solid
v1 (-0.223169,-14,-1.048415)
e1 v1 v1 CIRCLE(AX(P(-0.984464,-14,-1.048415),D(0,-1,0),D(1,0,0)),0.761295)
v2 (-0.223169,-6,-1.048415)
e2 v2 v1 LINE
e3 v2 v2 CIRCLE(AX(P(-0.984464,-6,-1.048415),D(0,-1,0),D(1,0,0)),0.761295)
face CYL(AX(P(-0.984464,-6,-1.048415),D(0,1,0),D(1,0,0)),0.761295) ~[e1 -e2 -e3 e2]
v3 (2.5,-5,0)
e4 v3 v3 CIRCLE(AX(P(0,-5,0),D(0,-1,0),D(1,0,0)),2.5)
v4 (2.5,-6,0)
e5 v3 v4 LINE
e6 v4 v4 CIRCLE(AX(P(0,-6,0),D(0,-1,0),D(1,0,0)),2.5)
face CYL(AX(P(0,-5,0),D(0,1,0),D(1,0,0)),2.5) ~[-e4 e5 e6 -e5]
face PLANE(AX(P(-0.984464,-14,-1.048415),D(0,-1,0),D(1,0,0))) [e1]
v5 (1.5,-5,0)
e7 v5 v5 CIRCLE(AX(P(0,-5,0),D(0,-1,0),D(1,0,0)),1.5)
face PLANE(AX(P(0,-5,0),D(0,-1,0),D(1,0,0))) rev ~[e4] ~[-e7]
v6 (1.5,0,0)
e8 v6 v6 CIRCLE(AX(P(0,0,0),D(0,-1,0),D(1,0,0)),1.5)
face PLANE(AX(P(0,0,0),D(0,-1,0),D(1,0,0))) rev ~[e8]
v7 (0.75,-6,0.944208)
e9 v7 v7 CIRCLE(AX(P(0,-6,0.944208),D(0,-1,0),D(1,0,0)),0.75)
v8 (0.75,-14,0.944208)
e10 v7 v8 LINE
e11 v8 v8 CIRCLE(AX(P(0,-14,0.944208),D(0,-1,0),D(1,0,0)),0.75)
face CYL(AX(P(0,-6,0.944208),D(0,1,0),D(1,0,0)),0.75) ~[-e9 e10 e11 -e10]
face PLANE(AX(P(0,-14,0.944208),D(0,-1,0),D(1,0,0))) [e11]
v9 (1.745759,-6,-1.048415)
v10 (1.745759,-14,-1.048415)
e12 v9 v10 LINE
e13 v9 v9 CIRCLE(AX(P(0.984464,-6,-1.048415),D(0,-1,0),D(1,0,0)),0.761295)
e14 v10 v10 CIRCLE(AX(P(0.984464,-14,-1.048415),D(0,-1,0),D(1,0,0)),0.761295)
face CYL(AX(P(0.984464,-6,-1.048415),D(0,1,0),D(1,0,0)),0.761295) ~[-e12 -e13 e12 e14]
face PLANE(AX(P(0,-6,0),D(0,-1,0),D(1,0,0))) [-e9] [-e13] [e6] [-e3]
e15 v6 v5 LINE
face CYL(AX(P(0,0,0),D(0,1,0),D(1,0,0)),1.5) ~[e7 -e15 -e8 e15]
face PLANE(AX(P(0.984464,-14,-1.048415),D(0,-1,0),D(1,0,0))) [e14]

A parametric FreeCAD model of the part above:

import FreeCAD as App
import Part
import Sketcher
from FreeCAD import Vector

doc = App.newDocument("Part")
params = doc.addObject("Spreadsheet::Sheet", "Params")
for row, (alias, value) in enumerate([
    ("sketch1_diameter", "3 mm"),
    ("pad1_length", "5 mm"),
    ("sketch2_diameter", "5 mm"),
    ("pad2_length", "1 mm"),
    ("sketch3_diameter", "1.5 mm"),
    ("pad3_length", "8 mm"),
], start=1):
    params.set(f"A{row}", alias)
    params.set(f"B{row}", "=" + value)
    params.setAlias(f"B{row}", alias)

body = doc.addObject("PartDesign::Body", "Body")

# Sketch on XZ plane
sketch1 = doc.addObject("Sketcher::SketchObject", "Sketch")
body.addObject(sketch1)
sketch1.AttachmentSupport = (doc.XZ_Plane, [""])
sketch1.MapMode = "FlatFace"
sketch1.addGeometry(Part.Circle(Vector(0, 0, 0), Vector(0, 0, 1), 1.5), False)
sketch1.addConstraint(Sketcher.Constraint("Coincident", 0, 3, -1, 1))
sketch1.addConstraint(Sketcher.Constraint("Diameter", 0, 3.0))
sketch1.setExpression("Constraints[1]", "Params.sketch1_diameter")
pad1 = doc.addObject("PartDesign::Pad", "Pad")
body.addObject(pad1)
pad1.Profile = sketch1
pad1.setExpression("Length", "Params.pad1_length")

# Sketch on XZ plane
sketch2 = doc.addObject("Sketcher::SketchObject", "Sketch001")
body.addObject(sketch2)
sketch2.AttachmentSupport = (doc.XZ_Plane, [""])
sketch2.MapMode = "FlatFace"
sketch2.AttachmentOffset = App.Placement(Vector(0, 0, 5), App.Rotation())
sketch2.addGeometry(Part.Circle(Vector(0, 0, 0), Vector(0, 0, 1), 2.5), False)
sketch2.addConstraint(Sketcher.Constraint("Coincident", 0, 3, -1, 1))
sketch2.addConstraint(Sketcher.Constraint("Diameter", 0, 5.0))
sketch2.setExpression("Constraints[1]", "Params.sketch2_diameter")
pad2 = doc.addObject("PartDesign::Pad", "Pad001")
body.addObject(pad2)
pad2.Profile = sketch2
pad2.setExpression("Length", "Params.pad2_length")

# Sketch on XZ plane
sketch3 = doc.addObject("Sketcher::SketchObject", "Sketch002")
body.addObject(sketch3)
sketch3.AttachmentSupport = (doc.XZ_Plane, [""])
sketch3.MapMode = "FlatFace"
sketch3.AttachmentOffset = App.Placement(Vector(0, 0, 6), App.Rotation())
sketch3.addGeometry(Part.Circle(Vector(1, -1, 0), Vector(0, 0, 1), 0.8), False)
sketch3.addGeometry(Part.Circle(Vector(-1, -1, 0), Vector(0, 0, 1), 0.8), False)
sketch3.addGeometry(Part.Circle(Vector(0, 0.9, 0), Vector(0, 0, 1), 0.8), False)
sketch3.addConstraint(Sketcher.Constraint("Equal", 0, 1))
sketch3.addConstraint(Sketcher.Constraint("Symmetric", 0, 3, 1, 3, -2))
sketch3.addConstraint(Sketcher.Constraint("PointOnObject", 2, 3, -2))
sketch3.addConstraint(Sketcher.Constraint("Diameter", 2, 1.5))
sketch3.addConstraint(Sketcher.Constraint("Diameter", 0, 1.52259))
sketch3.addConstraint(Sketcher.Constraint("DistanceY", -1, 1, 2, 3, 0.944208))
sketch3.addConstraint(Sketcher.Constraint("DistanceX", -1, 1, 0, 3, 0.984464))
sketch3.addConstraint(Sketcher.Constraint("DistanceY", 0, 3, -1, 1, 1.048415))
sketch3.setExpression("Constraints[3]", "Params.sketch3_diameter")
pad3 = doc.addObject("PartDesign::Pad", "Pad002")
body.addObject(pad3)
pad3.Profile = sketch3
pad3.setExpression("Length", "Params.pad3_length")

doc.recompute()
